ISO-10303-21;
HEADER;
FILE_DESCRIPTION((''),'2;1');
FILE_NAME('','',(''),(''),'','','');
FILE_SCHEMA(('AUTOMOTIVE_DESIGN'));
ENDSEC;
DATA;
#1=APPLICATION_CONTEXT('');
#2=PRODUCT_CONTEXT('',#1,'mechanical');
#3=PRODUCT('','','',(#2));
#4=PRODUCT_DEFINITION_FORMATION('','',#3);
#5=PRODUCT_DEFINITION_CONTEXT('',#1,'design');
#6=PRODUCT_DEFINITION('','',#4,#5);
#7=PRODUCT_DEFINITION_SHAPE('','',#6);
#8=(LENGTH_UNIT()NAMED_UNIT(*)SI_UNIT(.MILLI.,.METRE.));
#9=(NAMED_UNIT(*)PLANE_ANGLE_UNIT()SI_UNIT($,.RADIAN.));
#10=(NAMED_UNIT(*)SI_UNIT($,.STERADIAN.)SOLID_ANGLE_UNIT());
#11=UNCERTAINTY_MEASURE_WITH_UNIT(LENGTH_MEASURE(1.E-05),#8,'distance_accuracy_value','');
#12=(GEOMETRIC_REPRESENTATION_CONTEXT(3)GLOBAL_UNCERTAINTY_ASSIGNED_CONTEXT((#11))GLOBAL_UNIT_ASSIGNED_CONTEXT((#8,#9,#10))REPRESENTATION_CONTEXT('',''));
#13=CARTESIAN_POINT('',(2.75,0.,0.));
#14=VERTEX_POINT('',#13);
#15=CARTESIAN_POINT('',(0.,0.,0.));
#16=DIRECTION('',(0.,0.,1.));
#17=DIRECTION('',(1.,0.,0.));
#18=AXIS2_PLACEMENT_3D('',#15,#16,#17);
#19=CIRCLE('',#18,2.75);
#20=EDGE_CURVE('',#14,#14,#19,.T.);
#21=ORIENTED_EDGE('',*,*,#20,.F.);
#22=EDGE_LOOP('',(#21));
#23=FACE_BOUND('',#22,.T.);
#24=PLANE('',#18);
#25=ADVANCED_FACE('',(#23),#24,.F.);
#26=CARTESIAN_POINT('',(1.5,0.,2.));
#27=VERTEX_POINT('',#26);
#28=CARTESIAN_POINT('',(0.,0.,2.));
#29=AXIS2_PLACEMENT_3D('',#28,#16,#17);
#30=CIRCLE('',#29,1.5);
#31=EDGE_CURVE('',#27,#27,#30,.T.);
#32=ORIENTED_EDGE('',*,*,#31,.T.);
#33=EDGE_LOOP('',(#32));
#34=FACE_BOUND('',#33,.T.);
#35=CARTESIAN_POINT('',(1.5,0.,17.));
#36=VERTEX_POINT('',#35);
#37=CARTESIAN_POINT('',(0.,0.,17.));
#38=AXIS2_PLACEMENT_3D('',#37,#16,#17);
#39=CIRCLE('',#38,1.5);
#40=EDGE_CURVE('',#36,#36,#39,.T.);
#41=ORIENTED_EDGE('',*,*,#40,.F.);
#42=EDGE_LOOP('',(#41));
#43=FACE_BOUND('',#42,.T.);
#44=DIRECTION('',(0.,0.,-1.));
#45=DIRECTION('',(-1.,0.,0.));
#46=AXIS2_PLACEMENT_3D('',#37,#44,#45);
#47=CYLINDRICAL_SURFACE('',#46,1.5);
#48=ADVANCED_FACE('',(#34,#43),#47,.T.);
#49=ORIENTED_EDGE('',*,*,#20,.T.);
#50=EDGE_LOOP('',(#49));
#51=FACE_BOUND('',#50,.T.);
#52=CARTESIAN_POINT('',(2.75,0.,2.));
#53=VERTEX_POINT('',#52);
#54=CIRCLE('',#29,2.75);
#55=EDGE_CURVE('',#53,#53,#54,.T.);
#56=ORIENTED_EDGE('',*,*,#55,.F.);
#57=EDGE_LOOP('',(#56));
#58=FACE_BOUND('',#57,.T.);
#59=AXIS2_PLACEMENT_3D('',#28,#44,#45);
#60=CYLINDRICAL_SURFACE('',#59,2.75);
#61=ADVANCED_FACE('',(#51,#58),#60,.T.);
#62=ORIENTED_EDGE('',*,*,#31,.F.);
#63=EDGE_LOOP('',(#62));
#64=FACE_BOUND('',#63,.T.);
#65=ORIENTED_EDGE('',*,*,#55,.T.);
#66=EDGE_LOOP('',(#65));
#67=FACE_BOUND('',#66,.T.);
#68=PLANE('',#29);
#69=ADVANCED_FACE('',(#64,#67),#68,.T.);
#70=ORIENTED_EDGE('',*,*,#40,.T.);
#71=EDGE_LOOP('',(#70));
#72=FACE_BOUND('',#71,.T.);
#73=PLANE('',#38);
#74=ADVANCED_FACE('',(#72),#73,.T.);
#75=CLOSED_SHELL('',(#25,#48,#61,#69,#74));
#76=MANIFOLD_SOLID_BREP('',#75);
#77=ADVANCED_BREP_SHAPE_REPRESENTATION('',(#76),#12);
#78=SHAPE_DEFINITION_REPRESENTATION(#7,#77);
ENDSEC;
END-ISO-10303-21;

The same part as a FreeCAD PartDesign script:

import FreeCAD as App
import Part
import Sketcher

V = App.Vector
Q = App.Units.Quantity

doc = App.newDocument("Part")
body = doc.addObject("PartDesign::Body", "Body")

# Sketch on XY plane
sketch1 = body.newObject("Sketcher::SketchObject", "Sketch")
sketch1.AttachmentSupport = (doc.getObject("XY_Plane"), [""])
sketch1.MapMode = "FlatFace"
sketch1.addGeometry(Part.Circle(V(0, 0, 0), V(0, 0, 1), 2.8), False)
sketch1.addConstraint(Sketcher.Constraint("Coincident", 0, 3, -1, 1))
sketch1.addConstraint(Sketcher.Constraint("Diameter", 0, Q("5.5 mm")))
pad1 = body.newObject("PartDesign::Pad", "Pad")
pad1.Profile = sketch1
pad1.Length = 2

# Sketch on XY plane
sketch2 = body.newObject("Sketcher::SketchObject", "Sketch001")
sketch2.AttachmentSupport = (doc.getObject("XY_Plane"), [""])
sketch2.MapMode = "FlatFace"
sketch2.AttachmentOffset = App.Placement(V(0, 0, 2), App.Rotation())
sketch2.addGeometry(Part.Circle(V(0, 0, 0), V(0, 0, 1), 1.5), False)
sketch2.addConstraint(Sketcher.Constraint("Coincident", 0, 3, -1, 1))
sketch2.addConstraint(Sketcher.Constraint("Diameter", 0, Q("3 mm")))
pad2 = body.newObject("PartDesign::Pad", "Pad001")
pad2.Profile = sketch2
pad2.Length = 15

doc.recompute()
